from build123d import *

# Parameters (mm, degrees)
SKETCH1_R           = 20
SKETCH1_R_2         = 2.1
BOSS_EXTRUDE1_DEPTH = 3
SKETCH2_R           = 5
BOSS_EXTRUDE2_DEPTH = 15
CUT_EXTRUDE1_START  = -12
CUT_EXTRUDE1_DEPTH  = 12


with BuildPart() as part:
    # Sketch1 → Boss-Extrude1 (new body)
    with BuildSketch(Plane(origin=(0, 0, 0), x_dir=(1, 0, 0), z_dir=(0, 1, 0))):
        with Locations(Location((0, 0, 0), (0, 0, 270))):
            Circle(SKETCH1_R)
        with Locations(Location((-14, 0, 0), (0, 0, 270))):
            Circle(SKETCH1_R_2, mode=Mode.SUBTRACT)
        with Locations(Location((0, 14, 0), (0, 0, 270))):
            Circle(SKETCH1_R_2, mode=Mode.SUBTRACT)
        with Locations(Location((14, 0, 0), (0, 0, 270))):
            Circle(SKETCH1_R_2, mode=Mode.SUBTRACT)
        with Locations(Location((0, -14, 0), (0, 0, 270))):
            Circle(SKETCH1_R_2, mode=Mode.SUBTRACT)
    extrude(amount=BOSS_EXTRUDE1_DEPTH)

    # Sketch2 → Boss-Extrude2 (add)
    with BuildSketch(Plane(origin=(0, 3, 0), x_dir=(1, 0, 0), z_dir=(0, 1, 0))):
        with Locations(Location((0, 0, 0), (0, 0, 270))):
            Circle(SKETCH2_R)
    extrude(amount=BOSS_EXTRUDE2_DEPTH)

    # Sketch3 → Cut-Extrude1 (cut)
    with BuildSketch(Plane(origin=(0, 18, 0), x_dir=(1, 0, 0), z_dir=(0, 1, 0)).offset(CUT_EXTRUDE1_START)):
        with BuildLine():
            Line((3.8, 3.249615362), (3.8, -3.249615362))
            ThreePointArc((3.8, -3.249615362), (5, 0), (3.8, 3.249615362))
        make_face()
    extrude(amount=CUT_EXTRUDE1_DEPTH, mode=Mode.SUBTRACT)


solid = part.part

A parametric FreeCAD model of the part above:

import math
import FreeCAD as App
import Part
import Sketcher
Q = App.Units.Quantity

doc = App.newDocument("Part")
body = doc.addObject("PartDesign::Body", "Body")

sketch1 = body.newObject("Sketcher::SketchObject", "Sketch")
sketch1.AttachmentSupport = (doc.getObject("XZ_Plane"), [""])
sketch1.MapMode = "FlatFace"
sketch1.addGeometry([
    Part.Circle(App.Vector(0, 0, 0), App.Vector(0, 0, 1), 20),
    Part.Circle(App.Vector(0, -14, 0), App.Vector(0, 0, 1), 2.1),
    Part.Circle(App.Vector(-14, 0, 0), App.Vector(0, 0, 1), 2.1),
    Part.Circle(App.Vector(14, 0, 0), App.Vector(0, 0, 1), 2.1),
    Part.Circle(App.Vector(0, 14, 0), App.Vector(0, 0, 1), 2.1),
], False)
sketch1.addConstraint([
    Sketcher.Constraint("Coincident", 0, 3, -1, 1),
    Sketcher.Constraint("Equal", 1, 2),
    Sketcher.Constraint("Equal", 2, 3),
    Sketcher.Constraint("Equal", 3, 4),
    Sketcher.Constraint("Symmetric", 2, 3, 3, 3, -1, 1),
    Sketcher.Constraint("Symmetric", 1, 3, 4, 3, -1, 1),
    Sketcher.Constraint("PointOnObject", 1, 3, -2),
    Sketcher.Constraint("PointOnObject", 2, 3, -1),
    Sketcher.Constraint("Diameter", 0, Q("40 mm")),
    Sketcher.Constraint("Diameter", 1, Q("4.2 mm")),
    Sketcher.Constraint("DistanceY", 1, 3, -1, 1, Q("14 mm")),
    Sketcher.Constraint("DistanceX", 2, 3, -1, 1, Q("14 mm")),
])
pad1 = body.newObject("PartDesign::Pad", "Pad")
pad1.Profile = sketch1
pad1.Length = 3
pad1.Reversed = True

sketch2 = body.newObject("Sketcher::SketchObject", "Sketch001")
sketch2.AttachmentSupport = (doc.getObject("XZ_Plane"), [""])
sketch2.MapMode = "FlatFace"
sketch2.AttachmentOffset = App.Placement(App.Vector(0, 0, -3), App.Rotation())
sketch2.addGeometry(Part.Circle(App.Vector(0, 0, 0), App.Vector(0, 0, 1), 5), False)
sketch2.addConstraint([
    Sketcher.Constraint("Coincident", 0, 3, -1, 1),
    Sketcher.Constraint("Diameter", 0, Q("10 mm")),
])
pad2 = body.newObject("PartDesign::Pad", "Pad001")
pad2.Profile = sketch2
pad2.Length = 15
pad2.Reversed = True

sketch3 = body.newObject("Sketcher::SketchObject", "Sketch002")
sketch3.AttachmentSupport = (doc.getObject("XZ_Plane"), [""])
sketch3.MapMode = "FlatFace"
sketch3.AttachmentOffset = App.Placement(App.Vector(0, 0, -6), App.Rotation())
sketch3.addGeometry([
    Part.LineSegment(App.Vector(4, -3, 0), App.Vector(4, 3, 0)),
    Part.ArcOfCircle(Part.Circle(App.Vector(0, 0, 0), App.Vector(0, 0, 1), 5), math.radians(-41), math.radians(41)),
], False)
sketch3.addConstraint([
    Sketcher.Constraint("Coincident", 0, 1, 1, 1),
    Sketcher.Constraint("Coincident", 1, 2, 0, 2),
    Sketcher.Constraint("Vertical", 0),
    Sketcher.Constraint("Coincident", 1, 3, -1, 1),
    Sketcher.Constraint("Radius", 1, Q("5 mm")),
    Sketcher.Constraint("DistanceX", -1, 1, 0, 1, Q("3.8 mm")),
])
pocket1 = body.newObject("PartDesign::Pocket", "Pocket")
pocket1.Profile = sketch3
pocket1.Length = 12

doc.recompute()
